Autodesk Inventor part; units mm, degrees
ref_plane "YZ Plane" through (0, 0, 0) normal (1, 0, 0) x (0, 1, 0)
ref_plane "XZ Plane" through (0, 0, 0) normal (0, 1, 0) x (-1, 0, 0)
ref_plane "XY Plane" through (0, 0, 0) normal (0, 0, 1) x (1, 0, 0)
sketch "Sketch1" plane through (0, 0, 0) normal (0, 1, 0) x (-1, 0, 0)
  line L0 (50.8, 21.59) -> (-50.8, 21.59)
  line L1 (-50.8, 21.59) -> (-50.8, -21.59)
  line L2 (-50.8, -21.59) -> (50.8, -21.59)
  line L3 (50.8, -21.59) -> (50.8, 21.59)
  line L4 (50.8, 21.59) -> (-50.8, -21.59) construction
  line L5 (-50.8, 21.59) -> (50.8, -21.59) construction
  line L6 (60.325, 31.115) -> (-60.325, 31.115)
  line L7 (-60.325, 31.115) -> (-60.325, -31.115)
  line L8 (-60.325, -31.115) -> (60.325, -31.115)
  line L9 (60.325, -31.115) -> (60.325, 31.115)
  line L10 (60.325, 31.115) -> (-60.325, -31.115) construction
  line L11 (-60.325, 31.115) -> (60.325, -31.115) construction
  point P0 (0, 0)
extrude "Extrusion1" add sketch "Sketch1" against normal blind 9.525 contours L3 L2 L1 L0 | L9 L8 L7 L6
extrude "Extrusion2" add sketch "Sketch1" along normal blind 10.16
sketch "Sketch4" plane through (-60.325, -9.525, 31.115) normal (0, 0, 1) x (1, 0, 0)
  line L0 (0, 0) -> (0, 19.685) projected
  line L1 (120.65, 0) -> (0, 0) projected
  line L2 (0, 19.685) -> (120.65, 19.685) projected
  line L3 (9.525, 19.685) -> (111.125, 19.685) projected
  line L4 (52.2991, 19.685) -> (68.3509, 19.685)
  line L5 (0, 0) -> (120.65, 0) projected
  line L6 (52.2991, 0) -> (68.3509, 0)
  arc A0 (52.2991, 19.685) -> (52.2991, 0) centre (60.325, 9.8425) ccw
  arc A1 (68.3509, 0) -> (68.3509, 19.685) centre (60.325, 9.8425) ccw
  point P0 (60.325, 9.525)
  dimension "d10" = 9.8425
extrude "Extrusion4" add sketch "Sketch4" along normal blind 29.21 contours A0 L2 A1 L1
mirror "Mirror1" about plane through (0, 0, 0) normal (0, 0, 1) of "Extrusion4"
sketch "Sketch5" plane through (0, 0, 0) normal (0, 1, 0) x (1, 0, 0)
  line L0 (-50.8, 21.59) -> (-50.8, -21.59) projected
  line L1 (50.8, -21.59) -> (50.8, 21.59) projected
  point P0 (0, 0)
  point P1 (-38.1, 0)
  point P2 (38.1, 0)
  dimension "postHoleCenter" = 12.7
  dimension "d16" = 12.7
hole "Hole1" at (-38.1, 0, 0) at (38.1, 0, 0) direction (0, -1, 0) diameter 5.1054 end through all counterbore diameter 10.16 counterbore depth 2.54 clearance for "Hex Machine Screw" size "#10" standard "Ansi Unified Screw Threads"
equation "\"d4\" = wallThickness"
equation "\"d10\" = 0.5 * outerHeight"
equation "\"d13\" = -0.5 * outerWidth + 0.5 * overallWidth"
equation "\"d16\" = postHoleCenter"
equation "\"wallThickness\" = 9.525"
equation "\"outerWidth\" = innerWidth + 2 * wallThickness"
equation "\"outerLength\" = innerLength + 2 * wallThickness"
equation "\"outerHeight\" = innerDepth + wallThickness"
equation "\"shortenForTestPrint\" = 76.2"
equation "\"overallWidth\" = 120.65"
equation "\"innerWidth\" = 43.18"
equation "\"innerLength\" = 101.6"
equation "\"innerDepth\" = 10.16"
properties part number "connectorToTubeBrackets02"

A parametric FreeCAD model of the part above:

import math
import FreeCAD as App
import Part
import Sketcher
from FreeCAD import Vector
Q = App.Units.Quantity


def add_polygon(sketch, points):
    """Adds a closed chain of lines whose ends are joined by coincident constraints."""
    first, n = sketch.GeometryCount, len(points)
    for a, b in zip(points, points[1:] + points[:1]):
        sketch.addGeometry(Part.LineSegment(App.Vector(*a, 0), App.Vector(*b, 0)), False)
    for i in range(n):
        sketch.addConstraint(Sketcher.Constraint("Coincident", first + i, 2, first + (i + 1) % n, 1))

doc = App.newDocument("Part")
body = doc.addObject("PartDesign::Body", "Body")

sketch1 = body.newObject("Sketcher::SketchObject", "Sketch")
sketch1.AttachmentSupport = (doc.getObject("XZ_Plane"), [""])
sketch1.MapMode = "FlatFace"
add_polygon(sketch1, [(-60.325, -31.115), (-60.325, 31.115), (60.325, 31.115), (60.325, -31.115)])
sketch1.addConstraint([
    Sketcher.Constraint("Vertical", 0),
    Sketcher.Constraint("Horizontal", 1),
    Sketcher.Constraint("Vertical", 2),
    Sketcher.Constraint("Horizontal", 3),
    Sketcher.Constraint("Symmetric", 0, 2, 2, 2, -1, 1),
    Sketcher.Constraint("DistanceX", 1, 1, 1, 2, Q("4.75 in")),
    Sketcher.Constraint("DistanceY", 0, 1, 0, 2, Q("2.45 in")),
])
pad1 = body.newObject("PartDesign::Pad", "Pad")
pad1.Profile = sketch1
pad1.Length = Q("0.375 in")

sketch2 = body.newObject("Sketcher::SketchObject", "Sketch001")
sketch2.AttachmentSupport = (doc.getObject("XZ_Plane"), [""])
sketch2.MapMode = "FlatFace"
add_polygon(sketch2, [(-60.325, -31.115), (-60.325, 31.115), (60.325, 31.115), (60.325, -31.115)])
add_polygon(sketch2, [(50.8, 21.59), (-50.8, 21.59), (-50.8, -21.59), (50.8, -21.59)])
sketch2.addConstraint([
    Sketcher.Constraint("Vertical", 0),
    Sketcher.Constraint("Horizontal", 1),
    Sketcher.Constraint("Vertical", 2),
    Sketcher.Constraint("Horizontal", 3),
    Sketcher.Constraint("Horizontal", 4),
    Sketcher.Constraint("Vertical", 5),
    Sketcher.Constraint("Horizontal", 6),
    Sketcher.Constraint("Vertical", 7),
    Sketcher.Constraint("Symmetric", 0, 2, 2, 2, -1, 1),
    Sketcher.Constraint("Symmetric", 4, 2, 6, 2, -1, 1),
    Sketcher.Constraint("DistanceX", 4, 2, 4, 1, Q("4 in")),
    Sketcher.Constraint("DistanceY", 5, 2, 5, 1, Q("1.7 in")),
    Sketcher.Constraint("DistanceX", 1, 1, 1, 2, Q("4.75 in")),
    Sketcher.Constraint("DistanceY", 0, 1, 0, 2, Q("2.45 in")),
])
pad2 = body.newObject("PartDesign::Pad", "Pad001")
pad2.Profile = sketch2
pad2.Length = Q("0.4 in")
pad2.Reversed = True

sketch3 = body.newObject("Sketcher::SketchObject", "Sketch002")
sketch3.AttachmentSupport = (doc.getObject("XY_Plane"), [""])
sketch3.MapMode = "FlatFace"
sketch3.AttachmentOffset = App.Placement(Vector(0, 0, 1.225 * 25.4), App.Rotation())
sketch3.addGeometry([
    Part.ArcOfCircle(Part.Circle(Vector(0, 0.3175, 0), Vector(0, 0, 1), 12.699995), math.radians(129.194941), math.radians(230.805059)),
    Part.LineSegment(Vector(-8.0259, -9.525, 0), Vector(8.0259, -9.525, 0)),
    Part.ArcOfCircle(Part.Circle(Vector(0, 0.3175, 0), Vector(0, 0, 1), 12.699995), math.radians(-50.805059), math.radians(50.805059)),
    Part.LineSegment(Vector(8.0259, 10.16, 0), Vector(-8.0259, 10.16, 0)),
], False)
sketch3.addConstraint([
    Sketcher.Constraint("Coincident", 0, 2, 1, 1),
    Sketcher.Constraint("Coincident", 1, 2, 2, 1),
    Sketcher.Constraint("Coincident", 2, 2, 3, 1),
    Sketcher.Constraint("Coincident", 3, 2, 0, 1),
    Sketcher.Constraint("Horizontal", 1),
    Sketcher.Constraint("Horizontal", 3),
    Sketcher.Constraint("Coincident", 2, 3, 0, 3),
    Sketcher.Constraint("Equal", 0, 2),
    Sketcher.Constraint("PointOnObject", 0, 3, -2),
    Sketcher.Constraint("Vertical", 1, 2, 2, 2),
    Sketcher.Constraint("Radius", 0, Q("0.5 in")),
    Sketcher.Constraint("DistanceY", -1, 1, 2, 2, Q("0.4 in")),
    Sketcher.Constraint("DistanceY", 0, 2, 0, 3, Q("0.3875 in")),
])
pad3 = body.newObject("PartDesign::Pad", "Pad002")
pad3.Profile = sketch3
pad3.Length = Q("1.15 in")
doc.recompute()

mirrored = body.newObject("PartDesign::Mirrored", "Mirrored")
mirrored.Originals = [pad3]
mirrored.MirrorPlane = (doc.getObject("XY_Plane"), [""])
body.Tip = mirrored

sketch4 = body.newObject("Sketcher::SketchObject", "Sketch003")
sketch4.AttachmentSupport = (doc.getObject("XZ_Plane"), [""])
sketch4.MapMode = "FlatFace"
sketch4.addGeometry([
    Part.Circle(Vector(-38.1, 0, 0), Vector(0, 0, 1), 2.5527),
    Part.Circle(Vector(38.1, 0, 0), Vector(0, 0, 1), 2.5527),
], False)
sketch4.addConstraint([
    Sketcher.Constraint("Equal", 0, 1),
    Sketcher.Constraint("Symmetric", 0, 3, 1, 3, -1, 1),
    Sketcher.Constraint("PointOnObject", 0, 3, -1),
    Sketcher.Constraint("Diameter", 0, Q("0.201 in")),
    Sketcher.Constraint("DistanceX", 0, 3, 1, 3, Q("3 in")),
])
doc.recompute()
hole = body.newObject("PartDesign::Hole", "Hole")
hole.Profile = sketch4
hole.ThreadType = "None"
hole.Diameter = Q("0.201 in")
hole.DepthType = "ThroughAll"
hole.HoleCutType = "Counterbore"
hole.HoleCutDiameter = Q("0.4 in")
hole.HoleCutDepth = Q("0.1 in")
hole.Reversed = True

doc.recompute()
